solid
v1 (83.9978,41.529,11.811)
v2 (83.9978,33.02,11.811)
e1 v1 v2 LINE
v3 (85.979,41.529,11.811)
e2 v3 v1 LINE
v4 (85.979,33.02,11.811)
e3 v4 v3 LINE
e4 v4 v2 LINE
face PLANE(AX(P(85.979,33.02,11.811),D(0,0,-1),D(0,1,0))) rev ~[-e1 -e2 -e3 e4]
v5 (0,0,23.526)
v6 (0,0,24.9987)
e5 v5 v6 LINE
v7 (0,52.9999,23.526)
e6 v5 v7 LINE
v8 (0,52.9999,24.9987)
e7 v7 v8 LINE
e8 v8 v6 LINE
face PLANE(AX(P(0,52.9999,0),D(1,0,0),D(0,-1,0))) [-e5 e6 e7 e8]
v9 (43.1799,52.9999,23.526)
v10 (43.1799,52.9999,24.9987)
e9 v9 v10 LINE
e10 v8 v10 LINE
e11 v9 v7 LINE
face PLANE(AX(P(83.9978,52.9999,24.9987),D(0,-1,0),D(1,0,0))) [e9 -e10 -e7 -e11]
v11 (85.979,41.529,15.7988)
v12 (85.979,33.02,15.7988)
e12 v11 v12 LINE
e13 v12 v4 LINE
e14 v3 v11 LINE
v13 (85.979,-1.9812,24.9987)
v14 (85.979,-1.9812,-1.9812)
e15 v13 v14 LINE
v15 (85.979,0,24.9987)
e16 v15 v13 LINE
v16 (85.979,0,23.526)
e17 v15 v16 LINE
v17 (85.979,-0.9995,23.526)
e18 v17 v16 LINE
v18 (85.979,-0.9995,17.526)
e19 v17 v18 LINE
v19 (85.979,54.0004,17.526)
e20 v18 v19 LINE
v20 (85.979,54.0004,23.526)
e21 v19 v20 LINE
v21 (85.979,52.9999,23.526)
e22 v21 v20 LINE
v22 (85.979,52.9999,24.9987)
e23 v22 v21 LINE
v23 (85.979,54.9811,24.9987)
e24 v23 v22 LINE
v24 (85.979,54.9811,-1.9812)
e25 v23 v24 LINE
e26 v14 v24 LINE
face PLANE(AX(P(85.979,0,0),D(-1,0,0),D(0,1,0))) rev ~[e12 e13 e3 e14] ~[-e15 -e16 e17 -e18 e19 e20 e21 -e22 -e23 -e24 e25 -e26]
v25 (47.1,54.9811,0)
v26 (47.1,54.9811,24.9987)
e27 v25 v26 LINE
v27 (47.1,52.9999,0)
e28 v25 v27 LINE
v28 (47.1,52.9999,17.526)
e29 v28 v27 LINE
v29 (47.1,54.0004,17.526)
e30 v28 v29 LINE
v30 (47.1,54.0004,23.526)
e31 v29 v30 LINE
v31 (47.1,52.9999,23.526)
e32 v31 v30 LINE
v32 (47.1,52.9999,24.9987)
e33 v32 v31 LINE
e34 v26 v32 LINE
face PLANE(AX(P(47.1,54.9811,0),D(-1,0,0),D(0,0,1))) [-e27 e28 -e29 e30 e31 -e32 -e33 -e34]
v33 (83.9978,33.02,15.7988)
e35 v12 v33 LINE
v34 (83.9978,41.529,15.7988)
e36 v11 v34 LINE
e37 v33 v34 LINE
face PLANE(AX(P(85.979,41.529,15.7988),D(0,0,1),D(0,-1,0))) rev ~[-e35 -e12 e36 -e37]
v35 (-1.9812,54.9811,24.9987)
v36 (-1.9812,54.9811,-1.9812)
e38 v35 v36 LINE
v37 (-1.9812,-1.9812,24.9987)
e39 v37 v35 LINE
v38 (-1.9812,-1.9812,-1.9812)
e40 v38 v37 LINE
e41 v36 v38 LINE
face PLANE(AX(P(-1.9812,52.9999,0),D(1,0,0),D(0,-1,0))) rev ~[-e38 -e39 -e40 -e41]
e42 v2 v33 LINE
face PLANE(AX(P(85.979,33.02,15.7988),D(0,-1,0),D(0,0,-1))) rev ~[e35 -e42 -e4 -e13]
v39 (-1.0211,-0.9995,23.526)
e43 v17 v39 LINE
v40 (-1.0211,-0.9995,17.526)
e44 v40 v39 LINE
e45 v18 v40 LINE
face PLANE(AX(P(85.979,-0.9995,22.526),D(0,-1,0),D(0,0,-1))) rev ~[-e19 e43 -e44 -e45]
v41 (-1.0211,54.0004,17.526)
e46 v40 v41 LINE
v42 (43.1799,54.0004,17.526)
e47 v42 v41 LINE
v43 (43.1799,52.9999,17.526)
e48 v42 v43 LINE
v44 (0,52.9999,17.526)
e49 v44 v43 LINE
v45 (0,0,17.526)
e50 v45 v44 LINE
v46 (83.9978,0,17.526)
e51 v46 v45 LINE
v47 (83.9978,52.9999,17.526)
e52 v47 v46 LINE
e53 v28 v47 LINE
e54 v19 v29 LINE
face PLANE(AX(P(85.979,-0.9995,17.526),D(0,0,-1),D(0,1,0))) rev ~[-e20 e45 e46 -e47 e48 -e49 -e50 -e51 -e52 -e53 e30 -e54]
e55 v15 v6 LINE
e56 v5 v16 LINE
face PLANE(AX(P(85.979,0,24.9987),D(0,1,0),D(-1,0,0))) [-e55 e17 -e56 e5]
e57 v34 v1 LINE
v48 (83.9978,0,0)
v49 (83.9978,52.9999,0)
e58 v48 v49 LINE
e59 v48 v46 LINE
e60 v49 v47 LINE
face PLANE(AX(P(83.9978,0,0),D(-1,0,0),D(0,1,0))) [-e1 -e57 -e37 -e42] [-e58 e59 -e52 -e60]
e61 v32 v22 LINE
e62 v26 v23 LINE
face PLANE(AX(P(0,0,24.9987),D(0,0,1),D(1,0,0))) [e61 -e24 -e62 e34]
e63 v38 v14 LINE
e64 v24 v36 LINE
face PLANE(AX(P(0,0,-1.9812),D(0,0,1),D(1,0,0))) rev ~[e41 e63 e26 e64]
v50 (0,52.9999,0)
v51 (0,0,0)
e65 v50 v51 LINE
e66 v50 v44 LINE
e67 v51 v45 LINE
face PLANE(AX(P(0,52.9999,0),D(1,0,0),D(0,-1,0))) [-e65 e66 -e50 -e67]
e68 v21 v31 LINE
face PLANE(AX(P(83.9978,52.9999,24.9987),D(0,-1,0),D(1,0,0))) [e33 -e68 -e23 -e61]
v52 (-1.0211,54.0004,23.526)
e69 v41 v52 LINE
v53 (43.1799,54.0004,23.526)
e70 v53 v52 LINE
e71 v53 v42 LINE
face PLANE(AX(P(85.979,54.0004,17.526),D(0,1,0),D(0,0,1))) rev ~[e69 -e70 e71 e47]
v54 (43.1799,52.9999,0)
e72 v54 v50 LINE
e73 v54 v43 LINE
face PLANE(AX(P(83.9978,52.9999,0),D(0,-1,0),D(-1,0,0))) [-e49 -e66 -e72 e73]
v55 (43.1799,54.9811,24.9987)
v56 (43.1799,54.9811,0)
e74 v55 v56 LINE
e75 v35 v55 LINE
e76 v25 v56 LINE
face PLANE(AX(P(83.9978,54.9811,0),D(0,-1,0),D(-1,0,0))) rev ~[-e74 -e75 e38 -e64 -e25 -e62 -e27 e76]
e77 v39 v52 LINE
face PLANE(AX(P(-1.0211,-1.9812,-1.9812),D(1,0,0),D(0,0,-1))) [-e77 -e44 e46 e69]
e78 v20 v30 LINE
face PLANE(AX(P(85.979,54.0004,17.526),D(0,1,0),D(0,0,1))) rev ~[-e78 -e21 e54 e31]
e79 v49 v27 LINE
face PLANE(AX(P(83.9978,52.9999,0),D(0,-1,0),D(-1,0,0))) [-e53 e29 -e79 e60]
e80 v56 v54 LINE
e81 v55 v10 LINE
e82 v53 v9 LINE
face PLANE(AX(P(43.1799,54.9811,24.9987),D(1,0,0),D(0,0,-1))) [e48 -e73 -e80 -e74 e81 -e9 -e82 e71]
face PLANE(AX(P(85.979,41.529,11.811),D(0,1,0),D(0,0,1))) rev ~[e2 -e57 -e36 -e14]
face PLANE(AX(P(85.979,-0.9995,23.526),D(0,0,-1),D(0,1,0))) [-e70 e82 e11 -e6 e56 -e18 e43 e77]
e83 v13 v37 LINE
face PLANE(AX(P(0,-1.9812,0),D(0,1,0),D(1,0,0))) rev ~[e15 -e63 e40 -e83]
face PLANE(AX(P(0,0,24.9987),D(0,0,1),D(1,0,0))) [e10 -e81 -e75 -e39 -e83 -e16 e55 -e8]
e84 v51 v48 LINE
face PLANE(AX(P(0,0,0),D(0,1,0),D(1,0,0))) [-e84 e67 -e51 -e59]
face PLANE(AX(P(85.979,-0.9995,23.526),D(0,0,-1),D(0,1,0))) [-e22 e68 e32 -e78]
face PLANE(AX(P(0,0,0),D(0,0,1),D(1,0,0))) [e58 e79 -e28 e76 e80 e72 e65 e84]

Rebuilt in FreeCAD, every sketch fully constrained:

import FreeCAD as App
import Part
import Sketcher
Q = App.Units.Quantity


def faces_at(feature, points):
    """Names of the faces that lie closest to the given points."""
    faces = feature.Shape.Faces
    near = lambda p: min(range(len(faces)), key=lambda i: faces[i].distToShape(Part.Vertex(*p))[0])
    return sorted({f"Face{near(p) + 1}" for p in points})

doc = App.newDocument("Part")
params = doc.addObject("Spreadsheet::Sheet", "Params")
for row, (alias, value) in enumerate([
    ("sketch1_width", "3.307 in"),
    ("pad1_length", "0.9842008 in"),
    ("thickness_wall", "0.078 in"),
    ("sketch2_width", "0.335 in"),
    ("sketch2_height", "0.157 in"),
    ("pocket1_length", "0.9055 in"),
    ("pocket2_length", "3.4252008 in"),
    ("sketch4_width", "0.078 in"),
    ("pocket3_length", "0.079 in"),
    ("pocket4_length", "1 in"),
], start=1):
    params.set(f"A{row}", alias)
    params.set(f"B{row}", "=" + value)
    params.setAlias(f"B{row}", alias)

body = doc.addObject("PartDesign::Body", "Body")

# Sketch on XY plane
sketch1 = body.newObject("Sketcher::SketchObject", "Sketch")
sketch1.AttachmentSupport = (doc.getObject("XY_Plane"), [""])
sketch1.MapMode = "FlatFace"
sketch1.addGeometry(Part.LineSegment(App.Vector(0, 53, 0), App.Vector(0, 0, 0)), False)
sketch1.addGeometry(Part.LineSegment(App.Vector(0, 0, 0), App.Vector(84, 0, 0)), False)
sketch1.addGeometry(Part.LineSegment(App.Vector(84, 0, 0), App.Vector(84, 53, 0)), False)
sketch1.addGeometry(Part.LineSegment(App.Vector(84, 53, 0), App.Vector(0, 53, 0)), False)
sketch1.addConstraint(Sketcher.Constraint("Coincident", 0, 2, 1, 1))
sketch1.addConstraint(Sketcher.Constraint("Coincident", 1, 2, 2, 1))
sketch1.addConstraint(Sketcher.Constraint("Coincident", 2, 2, 3, 1))
sketch1.addConstraint(Sketcher.Constraint("Coincident", 3, 2, 0, 1))
sketch1.addConstraint(Sketcher.Constraint("Vertical", 0))
sketch1.addConstraint(Sketcher.Constraint("Horizontal", 1))
sketch1.addConstraint(Sketcher.Constraint("Vertical", 2))
sketch1.addConstraint(Sketcher.Constraint("Horizontal", 3))
sketch1.addConstraint(Sketcher.Constraint("Coincident", 0, 2, -1, 1))
sketch1.addConstraint(Sketcher.Constraint("DistanceX", 1, 1, 1, 2, Q("3.307 in")))
sketch1.addConstraint(Sketcher.Constraint("DistanceY", 0, 2, 0, 1, Q("2.0866 in")))
sketch1.setExpression("Constraints[9]", "Params.sketch1_width")
pad1 = body.newObject("PartDesign::Pad", "Pad")
pad1.Profile = sketch1
pad1.setExpression("Length", "Params.pad1_length")
doc.recompute()

thickness = body.newObject("PartDesign::Thickness", "Thickness")
thickness.Base = (pad1, faces_at(pad1, [(55.998, 17.667, 24.999)]))
thickness.setExpression("Value", "Params.thickness_wall")
thickness.Reversed = False
thickness.Join = "Intersection"

# Sketch on YZ plane
sketch2 = body.newObject("Sketcher::SketchObject", "Sketch001")
sketch2.AttachmentSupport = (doc.getObject("YZ_Plane"), [""])
sketch2.MapMode = "FlatFace"
sketch2.AttachmentOffset = App.Placement(App.Vector(0, 0, 3.385 * 25.4), App.Rotation())
sketch2.addGeometry(Part.LineSegment(App.Vector(33, 11.8, 0), App.Vector(41.5, 11.8, 0)), False)
sketch2.addGeometry(Part.LineSegment(App.Vector(41.5, 11.8, 0), App.Vector(41.5, 15.8, 0)), False)
sketch2.addGeometry(Part.LineSegment(App.Vector(41.5, 15.8, 0), App.Vector(33, 15.8, 0)), False)
sketch2.addGeometry(Part.LineSegment(App.Vector(33, 15.8, 0), App.Vector(33, 11.8, 0)), False)
sketch2.addConstraint(Sketcher.Constraint("Coincident", 0, 2, 1, 1))
sketch2.addConstraint(Sketcher.Constraint("Coincident", 1, 2, 2, 1))
sketch2.addConstraint(Sketcher.Constraint("Coincident", 2, 2, 3, 1))
sketch2.addConstraint(Sketcher.Constraint("Coincident", 3, 2, 0, 1))
sketch2.addConstraint(Sketcher.Constraint("Horizontal", 0))
sketch2.addConstraint(Sketcher.Constraint("Vertical", 1))
sketch2.addConstraint(Sketcher.Constraint("Horizontal", 2))
sketch2.addConstraint(Sketcher.Constraint("Vertical", 3))
sketch2.addConstraint(Sketcher.Constraint("DistanceX", 0, 1, 0, 2, Q("0.335 in")))
sketch2.addConstraint(Sketcher.Constraint("DistanceY", 1, 1, 1, 2, Q("0.157 in")))
sketch2.addConstraint(Sketcher.Constraint("DistanceX", -1, 1, 2, 2, Q("1.3 in")))
sketch2.addConstraint(Sketcher.Constraint("DistanceY", -1, 1, 0, 2, Q("0.465 in")))
sketch2.setExpression("Constraints[8]", "Params.sketch2_width")
sketch2.setExpression("Constraints[9]", "Params.sketch2_height")
pocket1 = body.newObject("PartDesign::Pocket", "Pocket")
pocket1.Profile = sketch2
pocket1.setExpression("Length", "Params.pocket1_length")

# Sketch on YZ plane
sketch3 = body.newObject("Sketcher::SketchObject", "Sketch002")
sketch3.AttachmentSupport = (doc.getObject("YZ_Plane"), [""])
sketch3.MapMode = "FlatFace"
sketch3.AttachmentOffset = App.Placement(App.Vector(0, 0, 3.385 * 25.4), App.Rotation())
sketch3.addGeometry(Part.LineSegment(App.Vector(-1, 18, 0), App.Vector(54, 18, 0)), False)
sketch3.addGeometry(Part.LineSegment(App.Vector(54, 18, 0), App.Vector(54, 24, 0)), False)
sketch3.addGeometry(Part.LineSegment(App.Vector(54, 24, 0), App.Vector(-1, 24, 0)), False)
sketch3.addGeometry(Part.LineSegment(App.Vector(-1, 24, 0), App.Vector(-1, 18, 0)), False)
sketch3.addConstraint(Sketcher.Constraint("Coincident", 0, 2, 1, 1))
sketch3.addConstraint(Sketcher.Constraint("Coincident", 1, 2, 2, 1))
sketch3.addConstraint(Sketcher.Constraint("Coincident", 2, 2, 3, 1))
sketch3.addConstraint(Sketcher.Constraint("Coincident", 3, 2, 0, 1))
sketch3.addConstraint(Sketcher.Constraint("Horizontal", 0))
sketch3.addConstraint(Sketcher.Constraint("Vertical", 1))
sketch3.addConstraint(Sketcher.Constraint("Horizontal", 2))
sketch3.addConstraint(Sketcher.Constraint("Vertical", 3))
sketch3.addConstraint(Sketcher.Constraint("DistanceY", -1, 1, 0, 2, Q("0.69 in")))
sketch3.addConstraint(Sketcher.Constraint("DistanceX", -1, 1, 0, 2, Q("2.126 in")))
sketch3.addConstraint(Sketcher.Constraint("DistanceX", 0, 1, 0, 2, Q("55 mm")))
sketch3.addConstraint(Sketcher.Constraint("DistanceY", 1, 1, 1, 2, Q("6 mm")))
pocket2 = body.newObject("PartDesign::Pocket", "Pocket001")
pocket2.Profile = sketch3
pocket2.setExpression("Length", "Params.pocket2_length")

# Sketch on XY plane
sketch4 = body.newObject("Sketcher::SketchObject", "Sketch003")
sketch4.AttachmentSupport = (doc.getObject("XY_Plane"), [""])
sketch4.MapMode = "FlatFace"
sketch4.AttachmentOffset = App.Placement(App.Vector(0, 0, 0.9842008 * 25.4), App.Rotation())
sketch4.addGeometry(Part.LineSegment(App.Vector(84, 0, 0), App.Vector(86, 0, 0)), False)
sketch4.addGeometry(Part.LineSegment(App.Vector(86, 0, 0), App.Vector(86, 53, 0)), False)
sketch4.addGeometry(Part.LineSegment(App.Vector(86, 53, 0), App.Vector(84, 53, 0)), False)
sketch4.addGeometry(Part.LineSegment(App.Vector(84, 53, 0), App.Vector(84, 0, 0)), False)
sketch4.addConstraint(Sketcher.Constraint("Coincident", 0, 2, 1, 1))
sketch4.addConstraint(Sketcher.Constraint("Coincident", 1, 2, 2, 1))
sketch4.addConstraint(Sketcher.Constraint("Coincident", 2, 2, 3, 1))
sketch4.addConstraint(Sketcher.Constraint("Coincident", 3, 2, 0, 1))
sketch4.addConstraint(Sketcher.Constraint("Horizontal", 0))
sketch4.addConstraint(Sketcher.Constraint("Vertical", 1))
sketch4.addConstraint(Sketcher.Constraint("Horizontal", 2))
sketch4.addConstraint(Sketcher.Constraint("Vertical", 3))
sketch4.addConstraint(Sketcher.Constraint("PointOnObject", 0, 2, -1))
sketch4.addConstraint(Sketcher.Constraint("DistanceX", 0, 1, 0, 2, Q("0.078 in")))
sketch4.addConstraint(Sketcher.Constraint("DistanceY", 1, 1, 1, 2, Q("2.0866 in")))
sketch4.addConstraint(Sketcher.Constraint("DistanceX", -1, 1, 0, 2, Q("3.385 in")))
sketch4.setExpression("Constraints[9]", "Params.sketch4_width")
pocket3 = body.newObject("PartDesign::Pocket", "Pocket002")
pocket3.Profile = sketch4
pocket3.setExpression("Length", "Params.pocket3_length")

# Sketch on XZ plane
sketch5 = body.newObject("Sketcher::SketchObject", "Sketch004")
sketch5.AttachmentSupport = (doc.getObject("XZ_Plane"), [""])
sketch5.MapMode = "FlatFace"
sketch5.AttachmentOffset = App.Placement(App.Vector(0, 0, -2.1646102 * 25.4), App.Rotation())
sketch5.addGeometry(Part.LineSegment(App.Vector(43.2, 0, 0), App.Vector(43.2, 25, 0)), False)
sketch5.addGeometry(Part.LineSegment(App.Vector(43.2, 25, 0), App.Vector(47.1, 25, 0)), False)
sketch5.addGeometry(Part.LineSegment(App.Vector(47.1, 25, 0), App.Vector(47.1, 0, 0)), False)
sketch5.addGeometry(Part.LineSegment(App.Vector(47.1, 0, 0), App.Vector(43.2, 0, 0)), False)
sketch5.addConstraint(Sketcher.Constraint("Coincident", 0, 2, 1, 1))
sketch5.addConstraint(Sketcher.Constraint("Coincident", 1, 2, 2, 1))
sketch5.addConstraint(Sketcher.Constraint("Coincident", 2, 2, 3, 1))
sketch5.addConstraint(Sketcher.Constraint("Coincident", 3, 2, 0, 1))
sketch5.addConstraint(Sketcher.Constraint("Vertical", 0))
sketch5.addConstraint(Sketcher.Constraint("Horizontal", 1))
sketch5.addConstraint(Sketcher.Constraint("Vertical", 2))
sketch5.addConstraint(Sketcher.Constraint("Horizontal", 3))
sketch5.addConstraint(Sketcher.Constraint("PointOnObject", 2, 2, -1))
sketch5.addConstraint(Sketcher.Constraint("DistanceX", -1, 1, 0, 2, Q("1.7 in")))
sketch5.addConstraint(Sketcher.Constraint("DistanceY", 0, 1, 0, 2, Q("0.9842 in")))
sketch5.addConstraint(Sketcher.Constraint("DistanceX", 1, 1, 1, 2, Q("3.92 mm")))
pocket4 = body.newObject("PartDesign::Pocket", "Pocket003")
pocket4.Profile = sketch5
pocket4.setExpression("Length", "Params.pocket4_length")
pocket4.Reversed = True

doc.recompute()
